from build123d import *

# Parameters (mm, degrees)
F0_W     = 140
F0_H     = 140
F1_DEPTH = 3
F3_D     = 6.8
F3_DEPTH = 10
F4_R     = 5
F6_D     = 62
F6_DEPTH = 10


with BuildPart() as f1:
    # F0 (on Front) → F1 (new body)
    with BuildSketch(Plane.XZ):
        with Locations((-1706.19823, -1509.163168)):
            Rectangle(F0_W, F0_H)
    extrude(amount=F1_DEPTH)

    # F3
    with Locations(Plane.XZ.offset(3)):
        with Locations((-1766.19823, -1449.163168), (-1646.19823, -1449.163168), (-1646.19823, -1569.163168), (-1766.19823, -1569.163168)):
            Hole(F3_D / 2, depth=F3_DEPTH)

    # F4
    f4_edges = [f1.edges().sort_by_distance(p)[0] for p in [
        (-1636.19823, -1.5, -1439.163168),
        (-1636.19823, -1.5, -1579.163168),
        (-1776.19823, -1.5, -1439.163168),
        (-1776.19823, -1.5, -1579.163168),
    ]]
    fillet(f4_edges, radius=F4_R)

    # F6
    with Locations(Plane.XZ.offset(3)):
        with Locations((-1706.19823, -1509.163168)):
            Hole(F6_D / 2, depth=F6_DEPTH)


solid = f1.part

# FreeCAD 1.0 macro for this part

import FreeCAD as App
import Part
import Sketcher

V = App.Vector


def edges_at(feature, points):
    """Names of the edges that pass closest to the given points."""
    edges = feature.Shape.Edges
    near = lambda p: min(range(len(edges)), key=lambda i: edges[i].distToShape(Part.Vertex(*p))[0])
    return sorted({f"Edge{near(p) + 1}" for p in points})

doc = App.newDocument("Part")
body = doc.addObject("PartDesign::Body", "Body")

sketch1 = body.newObject("Sketcher::SketchObject", "Sketch")
sketch1.AttachmentSupport = (doc.getObject("XZ_Plane"), [""])
sketch1.MapMode = "FlatFace"
sketch1.addGeometry(Part.LineSegment(V(-1776.19823, -1439.163168, 0), V(-1776.19823, -1579.163168, 0)), False)
sketch1.addGeometry(Part.LineSegment(V(-1776.19823, -1579.163168, 0), V(-1636.19823, -1579.163168, 0)), False)
sketch1.addGeometry(Part.LineSegment(V(-1636.19823, -1579.163168, 0), V(-1636.19823, -1439.163168, 0)), False)
sketch1.addGeometry(Part.LineSegment(V(-1636.19823, -1439.163168, 0), V(-1776.19823, -1439.163168, 0)), False)
sketch1.addConstraint(Sketcher.Constraint("Coincident", 0, 2, 1, 1))
sketch1.addConstraint(Sketcher.Constraint("Coincident", 1, 2, 2, 1))
sketch1.addConstraint(Sketcher.Constraint("Coincident", 2, 2, 3, 1))
sketch1.addConstraint(Sketcher.Constraint("Coincident", 3, 2, 0, 1))
sketch1.addConstraint(Sketcher.Constraint("Vertical", 0))
sketch1.addConstraint(Sketcher.Constraint("Horizontal", 1))
sketch1.addConstraint(Sketcher.Constraint("Vertical", 2))
sketch1.addConstraint(Sketcher.Constraint("Horizontal", 3))
sketch1.addConstraint(Sketcher.Constraint("Equal", 3, 0))
sketch1.addConstraint(Sketcher.Constraint("DistanceX", 1, 1, 1, 2, 140.0))
sketch1.addConstraint(Sketcher.Constraint("DistanceX", 0, 2, -1, 1, 1776.19823))
sketch1.addConstraint(Sketcher.Constraint("DistanceY", 0, 2, -1, 1, 1579.163168))
pad1 = body.newObject("PartDesign::Pad", "Pad")
pad1.Profile = sketch1
pad1.Length = 3

sketch2 = body.newObject("Sketcher::SketchObject", "Sketch001")
sketch2.AttachmentSupport = (doc.getObject("XZ_Plane"), [""])
sketch2.MapMode = "FlatFace"
sketch2.AttachmentOffset = App.Placement(V(0, 0, 3), App.Rotation())
sketch2.addGeometry(Part.Circle(V(-1766.19823, -1449.163168, 0), V(0, 0, 1), 3.4), False)
sketch2.addGeometry(Part.Circle(V(-1646.19823, -1449.163168, 0), V(0, 0, 1), 3.4), False)
sketch2.addGeometry(Part.Circle(V(-1646.19823, -1569.163168, 0), V(0, 0, 1), 3.4), False)
sketch2.addGeometry(Part.Circle(V(-1766.19823, -1569.163168, 0), V(0, 0, 1), 3.4), False)
sketch2.addConstraint(Sketcher.Constraint("Equal", 0, 1))
sketch2.addConstraint(Sketcher.Constraint("Equal", 1, 2))
sketch2.addConstraint(Sketcher.Constraint("Equal", 2, 3))
sketch2.addConstraint(Sketcher.Constraint("Horizontal", 0, 3, 1, 3))
sketch2.addConstraint(Sketcher.Constraint("Horizontal", 2, 3, 3, 3))
sketch2.addConstraint(Sketcher.Constraint("Vertical", 1, 3, 2, 3))
sketch2.addConstraint(Sketcher.Constraint("Vertical", 0, 3, 3, 3))
sketch2.addConstraint(Sketcher.Constraint("Diameter", 0, 6.8))
sketch2.addConstraint(Sketcher.Constraint("DistanceX", 0, 3, 1, 3, 120.0))
sketch2.addConstraint(Sketcher.Constraint("DistanceY", 2, 3, 1, 3, 120.0))
sketch2.addConstraint(Sketcher.Constraint("DistanceX", 0, 3, -1, 1, 1766.19823))
sketch2.addConstraint(Sketcher.Constraint("DistanceY", 0, 3, -1, 1, 1449.163168))
doc.recompute()
hole = body.newObject("PartDesign::Hole", "Hole")
hole.Profile = sketch2
hole.ThreadType = "None"
hole.Diameter = 6.8
hole.DepthType = "Dimension"
hole.Depth = 10
hole.DrillPoint = "Flat"
doc.recompute()

fillet = body.newObject("PartDesign::Fillet", "Fillet")
fillet.Base = (hole, edges_at(hole, [
    (-1636.198, -1.5, -1439.163),
    (-1636.198, -1.5, -1579.163),
    (-1776.198, -1.5, -1439.163),
    (-1776.198, -1.5, -1579.163),
]))
fillet.Radius = 5

sketch3 = body.newObject("Sketcher::SketchObject", "Sketch002")
sketch3.AttachmentSupport = (doc.getObject("XZ_Plane"), [""])
sketch3.MapMode = "FlatFace"
sketch3.AttachmentOffset = App.Placement(V(0, 0, 3), App.Rotation())
sketch3.addGeometry(Part.Circle(V(-1706.19823, -1509.163168, 0), V(0, 0, 1), 31), False)
sketch3.addConstraint(Sketcher.Constraint("Diameter", 0, 62.0))
sketch3.addConstraint(Sketcher.Constraint("DistanceX", 0, 3, -1, 1, 1706.19823))
sketch3.addConstraint(Sketcher.Constraint("DistanceY", 0, 3, -1, 1, 1509.163168))
doc.recompute()
hole2 = body.newObject("PartDesign::Hole", "Hole001")
hole2.Profile = sketch3
hole2.ThreadType = "None"
hole2.Diameter = 62
hole2.DepthType = "Dimension"
hole2.Depth = 10
hole2.DrillPoint = "Flat"

doc.recompute()
